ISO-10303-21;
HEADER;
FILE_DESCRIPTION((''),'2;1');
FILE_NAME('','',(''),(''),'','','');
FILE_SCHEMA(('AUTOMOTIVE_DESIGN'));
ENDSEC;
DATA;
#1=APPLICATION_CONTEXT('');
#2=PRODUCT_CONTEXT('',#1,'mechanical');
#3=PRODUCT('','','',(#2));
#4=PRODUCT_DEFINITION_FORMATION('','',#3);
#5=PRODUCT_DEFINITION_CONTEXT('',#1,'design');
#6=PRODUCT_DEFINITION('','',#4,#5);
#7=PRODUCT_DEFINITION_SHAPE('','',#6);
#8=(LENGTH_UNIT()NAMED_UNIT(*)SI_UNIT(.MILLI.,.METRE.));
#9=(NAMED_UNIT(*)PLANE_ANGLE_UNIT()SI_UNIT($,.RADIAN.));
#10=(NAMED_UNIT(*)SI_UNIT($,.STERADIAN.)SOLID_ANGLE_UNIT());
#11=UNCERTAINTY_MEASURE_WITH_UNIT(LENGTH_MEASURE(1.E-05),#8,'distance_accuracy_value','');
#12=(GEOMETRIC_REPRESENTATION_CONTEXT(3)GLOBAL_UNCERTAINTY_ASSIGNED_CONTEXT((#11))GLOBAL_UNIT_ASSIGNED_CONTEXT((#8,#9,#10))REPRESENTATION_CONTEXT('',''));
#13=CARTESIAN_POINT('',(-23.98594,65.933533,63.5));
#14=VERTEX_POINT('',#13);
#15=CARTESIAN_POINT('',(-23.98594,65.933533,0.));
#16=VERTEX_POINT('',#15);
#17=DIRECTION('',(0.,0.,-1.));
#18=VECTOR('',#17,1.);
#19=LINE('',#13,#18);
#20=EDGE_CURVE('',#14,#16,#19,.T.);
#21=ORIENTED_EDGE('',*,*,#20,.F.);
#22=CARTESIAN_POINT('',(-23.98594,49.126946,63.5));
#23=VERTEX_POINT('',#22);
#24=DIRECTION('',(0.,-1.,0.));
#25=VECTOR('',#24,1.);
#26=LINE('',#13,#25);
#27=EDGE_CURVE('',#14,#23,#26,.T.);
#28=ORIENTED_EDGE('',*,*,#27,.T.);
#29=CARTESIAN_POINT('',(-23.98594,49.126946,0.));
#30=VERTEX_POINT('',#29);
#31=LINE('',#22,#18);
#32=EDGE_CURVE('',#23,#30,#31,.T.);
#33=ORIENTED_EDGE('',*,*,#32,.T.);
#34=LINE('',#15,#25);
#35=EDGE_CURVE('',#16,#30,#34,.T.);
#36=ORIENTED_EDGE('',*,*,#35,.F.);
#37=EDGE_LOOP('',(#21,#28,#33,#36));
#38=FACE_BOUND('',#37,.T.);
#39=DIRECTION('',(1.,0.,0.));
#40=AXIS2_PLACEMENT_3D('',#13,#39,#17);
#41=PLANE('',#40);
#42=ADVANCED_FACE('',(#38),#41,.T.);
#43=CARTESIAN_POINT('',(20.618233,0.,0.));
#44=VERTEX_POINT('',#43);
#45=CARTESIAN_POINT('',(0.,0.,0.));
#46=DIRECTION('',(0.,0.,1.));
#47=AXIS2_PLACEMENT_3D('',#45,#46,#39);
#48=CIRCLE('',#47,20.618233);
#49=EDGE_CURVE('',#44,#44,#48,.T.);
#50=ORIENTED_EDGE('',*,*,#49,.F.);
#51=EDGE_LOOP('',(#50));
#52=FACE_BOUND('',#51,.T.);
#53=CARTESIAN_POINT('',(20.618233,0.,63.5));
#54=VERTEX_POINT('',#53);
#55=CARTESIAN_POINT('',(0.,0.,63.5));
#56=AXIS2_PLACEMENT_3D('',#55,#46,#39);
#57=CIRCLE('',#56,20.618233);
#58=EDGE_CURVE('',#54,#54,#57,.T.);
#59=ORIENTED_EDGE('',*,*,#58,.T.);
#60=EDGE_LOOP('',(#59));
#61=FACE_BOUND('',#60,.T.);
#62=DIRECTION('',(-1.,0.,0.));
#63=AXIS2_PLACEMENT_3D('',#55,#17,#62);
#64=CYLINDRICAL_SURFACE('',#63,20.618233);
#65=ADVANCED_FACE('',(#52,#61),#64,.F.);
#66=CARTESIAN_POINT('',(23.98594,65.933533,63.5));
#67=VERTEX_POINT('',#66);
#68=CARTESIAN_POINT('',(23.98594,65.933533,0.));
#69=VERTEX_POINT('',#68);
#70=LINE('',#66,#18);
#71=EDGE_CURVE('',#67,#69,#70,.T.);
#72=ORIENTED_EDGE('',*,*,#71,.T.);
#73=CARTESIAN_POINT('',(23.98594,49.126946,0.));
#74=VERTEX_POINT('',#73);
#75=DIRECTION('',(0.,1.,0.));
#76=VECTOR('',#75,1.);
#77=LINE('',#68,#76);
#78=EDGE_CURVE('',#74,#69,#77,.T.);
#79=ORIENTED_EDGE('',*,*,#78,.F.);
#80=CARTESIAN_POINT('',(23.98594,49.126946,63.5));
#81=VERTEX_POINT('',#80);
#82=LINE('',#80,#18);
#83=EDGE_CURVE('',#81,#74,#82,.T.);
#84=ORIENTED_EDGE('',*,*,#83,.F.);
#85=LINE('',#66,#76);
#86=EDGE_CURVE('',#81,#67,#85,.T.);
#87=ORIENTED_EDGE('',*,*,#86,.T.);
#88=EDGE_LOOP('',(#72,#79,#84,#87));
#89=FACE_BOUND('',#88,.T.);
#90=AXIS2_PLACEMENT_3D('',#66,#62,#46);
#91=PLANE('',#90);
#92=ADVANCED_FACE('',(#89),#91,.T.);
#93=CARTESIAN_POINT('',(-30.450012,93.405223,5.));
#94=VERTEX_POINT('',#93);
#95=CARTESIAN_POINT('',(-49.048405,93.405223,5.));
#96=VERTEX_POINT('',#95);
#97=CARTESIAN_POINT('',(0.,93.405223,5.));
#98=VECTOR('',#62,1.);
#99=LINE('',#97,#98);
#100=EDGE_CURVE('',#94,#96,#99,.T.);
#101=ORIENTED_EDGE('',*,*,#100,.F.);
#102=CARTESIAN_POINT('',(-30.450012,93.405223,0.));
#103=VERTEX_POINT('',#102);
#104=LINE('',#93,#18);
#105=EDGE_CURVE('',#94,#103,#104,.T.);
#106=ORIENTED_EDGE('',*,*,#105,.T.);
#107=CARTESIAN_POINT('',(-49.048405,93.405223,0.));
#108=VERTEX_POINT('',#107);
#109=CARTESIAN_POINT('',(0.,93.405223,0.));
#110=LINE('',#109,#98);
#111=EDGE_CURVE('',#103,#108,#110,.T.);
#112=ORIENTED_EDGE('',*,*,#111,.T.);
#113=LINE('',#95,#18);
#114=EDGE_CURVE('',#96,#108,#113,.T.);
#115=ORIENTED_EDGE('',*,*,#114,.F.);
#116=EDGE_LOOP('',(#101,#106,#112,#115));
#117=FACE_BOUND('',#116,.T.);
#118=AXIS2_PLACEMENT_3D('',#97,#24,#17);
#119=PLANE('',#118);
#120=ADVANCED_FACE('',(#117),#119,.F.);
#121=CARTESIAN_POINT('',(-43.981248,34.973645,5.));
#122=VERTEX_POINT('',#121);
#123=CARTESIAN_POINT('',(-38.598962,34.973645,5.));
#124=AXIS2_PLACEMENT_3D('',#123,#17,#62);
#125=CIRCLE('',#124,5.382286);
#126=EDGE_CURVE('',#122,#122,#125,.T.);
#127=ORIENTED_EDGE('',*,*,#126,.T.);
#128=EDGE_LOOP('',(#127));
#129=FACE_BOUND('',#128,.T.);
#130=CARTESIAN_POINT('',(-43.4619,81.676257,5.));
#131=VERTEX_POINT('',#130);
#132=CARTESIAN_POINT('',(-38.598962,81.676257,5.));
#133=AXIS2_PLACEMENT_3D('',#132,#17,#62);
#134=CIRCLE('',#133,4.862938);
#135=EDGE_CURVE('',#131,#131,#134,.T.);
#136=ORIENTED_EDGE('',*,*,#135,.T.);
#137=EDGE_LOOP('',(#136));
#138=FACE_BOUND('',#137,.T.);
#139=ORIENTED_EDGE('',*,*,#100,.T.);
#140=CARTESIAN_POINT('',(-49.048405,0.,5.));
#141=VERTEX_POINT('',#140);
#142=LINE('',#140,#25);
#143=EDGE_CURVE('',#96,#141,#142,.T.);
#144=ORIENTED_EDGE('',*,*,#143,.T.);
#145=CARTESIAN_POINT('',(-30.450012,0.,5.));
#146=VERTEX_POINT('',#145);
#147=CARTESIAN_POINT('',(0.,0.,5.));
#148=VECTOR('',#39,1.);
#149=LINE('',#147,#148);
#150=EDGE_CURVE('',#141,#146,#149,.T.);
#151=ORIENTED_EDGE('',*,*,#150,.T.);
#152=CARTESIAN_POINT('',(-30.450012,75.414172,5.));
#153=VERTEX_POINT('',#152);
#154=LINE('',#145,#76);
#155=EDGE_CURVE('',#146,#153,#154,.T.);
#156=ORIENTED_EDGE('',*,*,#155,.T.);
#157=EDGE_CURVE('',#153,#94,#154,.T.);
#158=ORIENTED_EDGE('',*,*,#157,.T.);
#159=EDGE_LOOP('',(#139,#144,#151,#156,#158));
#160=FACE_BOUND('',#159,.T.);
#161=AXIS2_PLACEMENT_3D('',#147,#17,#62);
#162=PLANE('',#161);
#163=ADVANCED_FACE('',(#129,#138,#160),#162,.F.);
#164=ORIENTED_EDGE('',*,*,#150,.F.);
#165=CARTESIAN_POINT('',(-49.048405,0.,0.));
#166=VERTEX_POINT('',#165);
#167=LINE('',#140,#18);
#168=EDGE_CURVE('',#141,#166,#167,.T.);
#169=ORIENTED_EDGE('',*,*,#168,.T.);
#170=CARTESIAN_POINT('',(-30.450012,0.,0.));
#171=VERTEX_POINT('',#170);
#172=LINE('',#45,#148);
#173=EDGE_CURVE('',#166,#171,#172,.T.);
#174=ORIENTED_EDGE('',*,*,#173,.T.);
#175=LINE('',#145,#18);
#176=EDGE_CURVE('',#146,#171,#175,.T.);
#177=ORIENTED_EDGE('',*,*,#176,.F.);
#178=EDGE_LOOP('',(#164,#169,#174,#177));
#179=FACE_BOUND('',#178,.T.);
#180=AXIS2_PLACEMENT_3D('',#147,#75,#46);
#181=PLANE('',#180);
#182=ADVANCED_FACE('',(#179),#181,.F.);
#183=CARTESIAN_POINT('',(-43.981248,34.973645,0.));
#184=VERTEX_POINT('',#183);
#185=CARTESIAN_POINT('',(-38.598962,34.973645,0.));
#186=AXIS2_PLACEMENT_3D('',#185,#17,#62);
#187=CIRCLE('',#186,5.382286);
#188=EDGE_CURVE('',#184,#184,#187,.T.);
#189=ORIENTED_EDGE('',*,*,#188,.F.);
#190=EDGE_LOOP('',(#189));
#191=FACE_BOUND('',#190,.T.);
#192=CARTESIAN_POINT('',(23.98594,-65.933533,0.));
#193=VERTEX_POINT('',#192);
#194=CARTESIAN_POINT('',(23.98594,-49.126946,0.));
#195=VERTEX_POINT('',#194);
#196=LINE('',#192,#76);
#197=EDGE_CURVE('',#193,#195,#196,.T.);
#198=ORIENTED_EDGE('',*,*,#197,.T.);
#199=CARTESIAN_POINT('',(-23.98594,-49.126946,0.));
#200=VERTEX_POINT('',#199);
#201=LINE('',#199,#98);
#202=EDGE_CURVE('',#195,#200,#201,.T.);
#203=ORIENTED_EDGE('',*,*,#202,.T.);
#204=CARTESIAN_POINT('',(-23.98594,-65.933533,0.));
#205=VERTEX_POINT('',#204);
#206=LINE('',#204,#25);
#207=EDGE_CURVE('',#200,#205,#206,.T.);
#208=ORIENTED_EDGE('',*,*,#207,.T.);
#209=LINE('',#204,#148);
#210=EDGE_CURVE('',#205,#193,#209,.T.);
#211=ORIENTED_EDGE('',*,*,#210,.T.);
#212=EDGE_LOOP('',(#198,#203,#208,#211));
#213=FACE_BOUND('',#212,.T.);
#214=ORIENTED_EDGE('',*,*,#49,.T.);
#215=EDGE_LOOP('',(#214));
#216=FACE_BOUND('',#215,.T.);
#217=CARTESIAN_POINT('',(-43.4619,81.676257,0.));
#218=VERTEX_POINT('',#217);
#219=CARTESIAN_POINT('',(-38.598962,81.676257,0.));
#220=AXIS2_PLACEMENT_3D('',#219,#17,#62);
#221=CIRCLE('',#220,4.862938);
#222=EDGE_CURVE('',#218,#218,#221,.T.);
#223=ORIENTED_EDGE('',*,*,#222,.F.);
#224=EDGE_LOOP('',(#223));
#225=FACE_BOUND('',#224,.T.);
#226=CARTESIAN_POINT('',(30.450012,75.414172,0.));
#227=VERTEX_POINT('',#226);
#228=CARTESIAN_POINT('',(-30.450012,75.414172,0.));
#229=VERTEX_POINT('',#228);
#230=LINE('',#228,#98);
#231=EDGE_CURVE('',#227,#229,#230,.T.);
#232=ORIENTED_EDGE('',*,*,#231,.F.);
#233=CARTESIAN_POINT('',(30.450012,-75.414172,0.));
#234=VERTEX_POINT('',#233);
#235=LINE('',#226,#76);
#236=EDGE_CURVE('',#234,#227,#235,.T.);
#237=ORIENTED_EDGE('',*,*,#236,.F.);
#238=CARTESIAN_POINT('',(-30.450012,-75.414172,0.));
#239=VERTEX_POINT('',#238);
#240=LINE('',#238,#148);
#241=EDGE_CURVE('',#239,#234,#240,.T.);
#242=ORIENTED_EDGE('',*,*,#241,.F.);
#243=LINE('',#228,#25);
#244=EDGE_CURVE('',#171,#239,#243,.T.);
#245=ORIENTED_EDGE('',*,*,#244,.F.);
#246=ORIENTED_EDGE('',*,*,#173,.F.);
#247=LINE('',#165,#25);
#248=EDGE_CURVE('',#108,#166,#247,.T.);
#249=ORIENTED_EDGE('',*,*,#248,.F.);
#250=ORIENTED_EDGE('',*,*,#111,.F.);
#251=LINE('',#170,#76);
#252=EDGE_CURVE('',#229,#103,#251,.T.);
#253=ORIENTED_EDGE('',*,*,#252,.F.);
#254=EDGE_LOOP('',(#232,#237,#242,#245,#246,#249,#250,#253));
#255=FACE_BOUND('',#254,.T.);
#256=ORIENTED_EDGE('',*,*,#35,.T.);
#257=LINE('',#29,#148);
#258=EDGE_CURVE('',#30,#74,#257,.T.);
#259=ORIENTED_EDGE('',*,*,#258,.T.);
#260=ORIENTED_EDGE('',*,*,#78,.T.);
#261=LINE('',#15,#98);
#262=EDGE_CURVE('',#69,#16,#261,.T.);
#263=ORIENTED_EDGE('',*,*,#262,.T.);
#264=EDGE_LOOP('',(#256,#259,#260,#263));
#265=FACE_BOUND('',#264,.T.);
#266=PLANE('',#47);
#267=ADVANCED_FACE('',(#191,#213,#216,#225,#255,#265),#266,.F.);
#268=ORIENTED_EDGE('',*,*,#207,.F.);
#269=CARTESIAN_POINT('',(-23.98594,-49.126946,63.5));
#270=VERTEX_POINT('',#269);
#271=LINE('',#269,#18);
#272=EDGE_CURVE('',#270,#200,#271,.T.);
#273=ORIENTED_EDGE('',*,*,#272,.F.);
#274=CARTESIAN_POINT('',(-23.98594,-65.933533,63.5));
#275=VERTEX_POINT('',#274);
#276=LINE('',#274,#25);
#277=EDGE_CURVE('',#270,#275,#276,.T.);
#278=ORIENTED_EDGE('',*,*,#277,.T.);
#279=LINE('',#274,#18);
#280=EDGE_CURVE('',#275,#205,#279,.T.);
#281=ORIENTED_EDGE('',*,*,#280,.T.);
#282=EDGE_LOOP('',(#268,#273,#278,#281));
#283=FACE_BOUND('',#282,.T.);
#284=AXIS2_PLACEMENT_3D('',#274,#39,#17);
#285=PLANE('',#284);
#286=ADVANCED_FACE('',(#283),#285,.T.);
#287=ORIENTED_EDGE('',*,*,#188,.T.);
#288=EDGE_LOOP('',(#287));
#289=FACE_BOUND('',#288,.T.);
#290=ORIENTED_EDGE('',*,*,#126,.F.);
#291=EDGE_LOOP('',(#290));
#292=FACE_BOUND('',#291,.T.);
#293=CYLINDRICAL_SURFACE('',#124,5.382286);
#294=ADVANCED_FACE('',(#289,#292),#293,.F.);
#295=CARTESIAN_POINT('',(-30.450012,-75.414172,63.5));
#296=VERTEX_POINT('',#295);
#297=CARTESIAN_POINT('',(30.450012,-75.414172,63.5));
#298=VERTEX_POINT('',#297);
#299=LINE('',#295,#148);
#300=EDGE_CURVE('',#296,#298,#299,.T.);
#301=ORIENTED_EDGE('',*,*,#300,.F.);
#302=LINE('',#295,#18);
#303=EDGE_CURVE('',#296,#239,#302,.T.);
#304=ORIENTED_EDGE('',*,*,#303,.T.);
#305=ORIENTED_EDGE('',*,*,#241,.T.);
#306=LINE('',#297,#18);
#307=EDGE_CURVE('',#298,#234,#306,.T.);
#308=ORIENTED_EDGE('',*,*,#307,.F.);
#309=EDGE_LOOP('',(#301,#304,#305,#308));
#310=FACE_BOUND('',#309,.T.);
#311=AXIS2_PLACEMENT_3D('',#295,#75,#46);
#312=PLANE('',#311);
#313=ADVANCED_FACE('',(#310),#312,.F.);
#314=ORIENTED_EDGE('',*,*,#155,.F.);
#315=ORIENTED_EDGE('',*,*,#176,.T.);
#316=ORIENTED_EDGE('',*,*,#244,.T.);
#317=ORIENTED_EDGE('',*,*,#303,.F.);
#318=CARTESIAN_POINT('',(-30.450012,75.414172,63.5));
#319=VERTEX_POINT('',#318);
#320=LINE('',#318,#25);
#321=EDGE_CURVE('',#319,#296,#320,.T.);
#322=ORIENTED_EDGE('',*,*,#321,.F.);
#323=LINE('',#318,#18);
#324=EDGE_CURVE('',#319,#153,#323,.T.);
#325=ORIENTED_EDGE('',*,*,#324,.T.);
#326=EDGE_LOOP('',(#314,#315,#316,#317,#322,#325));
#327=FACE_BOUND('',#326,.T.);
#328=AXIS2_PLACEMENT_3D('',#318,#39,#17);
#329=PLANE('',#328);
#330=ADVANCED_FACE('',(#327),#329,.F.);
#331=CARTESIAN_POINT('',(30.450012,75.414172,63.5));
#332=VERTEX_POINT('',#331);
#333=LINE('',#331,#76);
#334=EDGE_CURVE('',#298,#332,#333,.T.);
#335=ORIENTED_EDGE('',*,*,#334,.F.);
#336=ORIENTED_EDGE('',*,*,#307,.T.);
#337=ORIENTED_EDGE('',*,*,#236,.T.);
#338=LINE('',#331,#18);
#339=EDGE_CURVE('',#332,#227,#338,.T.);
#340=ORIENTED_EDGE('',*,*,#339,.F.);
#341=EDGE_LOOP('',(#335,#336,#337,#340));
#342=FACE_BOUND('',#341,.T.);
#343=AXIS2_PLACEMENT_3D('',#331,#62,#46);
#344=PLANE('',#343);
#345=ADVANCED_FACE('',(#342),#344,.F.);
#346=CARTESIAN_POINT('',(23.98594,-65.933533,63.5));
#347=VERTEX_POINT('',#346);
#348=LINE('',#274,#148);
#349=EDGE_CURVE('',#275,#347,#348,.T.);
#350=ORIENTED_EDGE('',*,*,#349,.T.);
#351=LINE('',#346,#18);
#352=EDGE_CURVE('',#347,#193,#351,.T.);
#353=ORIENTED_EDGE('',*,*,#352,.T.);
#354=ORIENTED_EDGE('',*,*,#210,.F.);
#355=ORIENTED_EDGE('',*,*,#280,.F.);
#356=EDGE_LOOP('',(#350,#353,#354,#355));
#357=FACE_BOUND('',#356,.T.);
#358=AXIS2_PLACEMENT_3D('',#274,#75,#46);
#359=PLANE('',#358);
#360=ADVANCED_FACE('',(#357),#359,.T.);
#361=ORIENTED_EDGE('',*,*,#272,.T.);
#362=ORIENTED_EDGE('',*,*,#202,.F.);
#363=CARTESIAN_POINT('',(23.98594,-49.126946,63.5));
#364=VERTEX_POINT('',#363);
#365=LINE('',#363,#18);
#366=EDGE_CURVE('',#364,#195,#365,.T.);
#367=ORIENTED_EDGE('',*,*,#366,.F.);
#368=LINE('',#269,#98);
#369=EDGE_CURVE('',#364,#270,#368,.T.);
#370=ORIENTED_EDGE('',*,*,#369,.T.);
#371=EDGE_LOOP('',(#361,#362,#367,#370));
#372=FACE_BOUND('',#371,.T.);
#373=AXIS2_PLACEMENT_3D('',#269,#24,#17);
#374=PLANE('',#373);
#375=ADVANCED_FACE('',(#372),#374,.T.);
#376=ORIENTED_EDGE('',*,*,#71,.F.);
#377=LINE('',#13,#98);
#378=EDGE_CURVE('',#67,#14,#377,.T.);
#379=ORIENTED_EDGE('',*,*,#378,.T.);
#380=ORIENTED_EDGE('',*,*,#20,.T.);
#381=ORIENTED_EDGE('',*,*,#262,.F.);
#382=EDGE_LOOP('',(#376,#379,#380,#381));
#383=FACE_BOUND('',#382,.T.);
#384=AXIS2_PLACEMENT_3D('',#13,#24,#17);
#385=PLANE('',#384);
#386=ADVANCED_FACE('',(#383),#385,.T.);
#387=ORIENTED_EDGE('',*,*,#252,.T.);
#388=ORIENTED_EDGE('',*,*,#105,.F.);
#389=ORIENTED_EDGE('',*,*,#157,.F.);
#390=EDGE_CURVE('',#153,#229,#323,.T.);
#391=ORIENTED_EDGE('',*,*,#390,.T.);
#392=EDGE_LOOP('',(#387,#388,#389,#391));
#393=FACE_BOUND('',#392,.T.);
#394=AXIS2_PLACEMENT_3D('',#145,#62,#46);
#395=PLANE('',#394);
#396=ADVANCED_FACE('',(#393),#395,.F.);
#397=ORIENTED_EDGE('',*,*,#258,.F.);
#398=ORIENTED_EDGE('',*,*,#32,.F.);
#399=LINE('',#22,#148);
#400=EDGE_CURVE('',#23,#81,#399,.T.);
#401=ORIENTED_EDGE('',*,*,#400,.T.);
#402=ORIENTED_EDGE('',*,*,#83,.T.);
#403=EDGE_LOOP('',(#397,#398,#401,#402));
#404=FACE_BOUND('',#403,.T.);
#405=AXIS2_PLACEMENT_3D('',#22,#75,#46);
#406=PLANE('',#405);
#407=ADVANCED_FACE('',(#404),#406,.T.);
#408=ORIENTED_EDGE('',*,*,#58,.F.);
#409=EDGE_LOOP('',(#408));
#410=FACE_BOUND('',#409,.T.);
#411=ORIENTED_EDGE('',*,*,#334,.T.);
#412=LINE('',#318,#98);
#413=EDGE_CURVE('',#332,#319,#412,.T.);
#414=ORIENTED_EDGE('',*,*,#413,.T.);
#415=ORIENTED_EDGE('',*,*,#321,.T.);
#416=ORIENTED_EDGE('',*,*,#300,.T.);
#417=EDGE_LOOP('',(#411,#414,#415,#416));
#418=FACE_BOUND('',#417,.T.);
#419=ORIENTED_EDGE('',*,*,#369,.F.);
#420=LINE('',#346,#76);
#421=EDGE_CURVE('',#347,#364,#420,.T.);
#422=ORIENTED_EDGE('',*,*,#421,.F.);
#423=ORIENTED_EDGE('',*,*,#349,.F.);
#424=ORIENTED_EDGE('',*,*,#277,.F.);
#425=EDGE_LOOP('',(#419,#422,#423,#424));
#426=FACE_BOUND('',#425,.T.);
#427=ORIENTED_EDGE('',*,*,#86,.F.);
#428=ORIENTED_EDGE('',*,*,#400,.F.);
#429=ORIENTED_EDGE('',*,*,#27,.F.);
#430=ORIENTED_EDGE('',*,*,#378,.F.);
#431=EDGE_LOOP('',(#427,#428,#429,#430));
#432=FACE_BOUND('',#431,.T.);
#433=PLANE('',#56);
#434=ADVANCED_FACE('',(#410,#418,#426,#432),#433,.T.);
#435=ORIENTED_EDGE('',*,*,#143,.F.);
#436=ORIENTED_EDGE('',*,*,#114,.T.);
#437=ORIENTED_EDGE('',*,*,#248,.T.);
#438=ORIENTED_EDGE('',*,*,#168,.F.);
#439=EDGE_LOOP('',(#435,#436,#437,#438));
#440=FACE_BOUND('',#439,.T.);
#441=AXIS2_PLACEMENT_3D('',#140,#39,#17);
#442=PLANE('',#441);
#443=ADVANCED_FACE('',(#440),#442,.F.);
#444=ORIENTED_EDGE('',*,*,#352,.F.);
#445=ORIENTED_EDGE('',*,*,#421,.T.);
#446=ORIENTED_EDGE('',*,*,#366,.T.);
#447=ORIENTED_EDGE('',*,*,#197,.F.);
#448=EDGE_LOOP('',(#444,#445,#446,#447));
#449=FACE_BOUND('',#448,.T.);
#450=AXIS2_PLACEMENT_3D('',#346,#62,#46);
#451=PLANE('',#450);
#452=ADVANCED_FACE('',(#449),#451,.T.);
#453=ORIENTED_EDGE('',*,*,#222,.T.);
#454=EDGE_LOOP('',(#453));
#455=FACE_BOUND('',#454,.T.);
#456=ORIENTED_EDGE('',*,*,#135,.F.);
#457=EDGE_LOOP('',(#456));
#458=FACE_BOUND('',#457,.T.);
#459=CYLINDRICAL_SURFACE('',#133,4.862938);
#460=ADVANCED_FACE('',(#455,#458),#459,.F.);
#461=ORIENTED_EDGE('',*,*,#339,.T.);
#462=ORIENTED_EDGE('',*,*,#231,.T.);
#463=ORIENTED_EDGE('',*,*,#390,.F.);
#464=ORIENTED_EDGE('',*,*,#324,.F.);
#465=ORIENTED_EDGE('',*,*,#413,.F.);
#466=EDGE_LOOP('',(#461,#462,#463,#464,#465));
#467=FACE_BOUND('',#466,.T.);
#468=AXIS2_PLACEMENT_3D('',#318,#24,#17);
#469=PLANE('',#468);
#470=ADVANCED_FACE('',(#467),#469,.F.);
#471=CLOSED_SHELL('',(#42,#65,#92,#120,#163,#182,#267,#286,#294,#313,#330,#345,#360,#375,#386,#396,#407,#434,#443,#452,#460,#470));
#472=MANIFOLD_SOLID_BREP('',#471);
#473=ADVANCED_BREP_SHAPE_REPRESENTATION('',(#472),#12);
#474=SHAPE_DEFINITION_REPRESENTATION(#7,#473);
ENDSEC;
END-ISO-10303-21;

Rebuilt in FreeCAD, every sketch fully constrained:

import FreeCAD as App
import Part
import Sketcher
from FreeCAD import Vector
Q = App.Units.Quantity

doc = App.newDocument("Part")
body = doc.addObject("PartDesign::Body", "Body")

# Sketch on XY plane
sketch1 = body.newObject("Sketcher::SketchObject", "Sketch")
sketch1.AttachmentSupport = (doc.getObject("XY_Plane"), [""])
sketch1.MapMode = "FlatFace"
sketch1.addGeometry([
    Part.LineSegment(Vector(-30, 75, 0), Vector(-30, -75, 0)),  # 0
    Part.LineSegment(Vector(-30, -75, 0), Vector(30, -75, 0)),  # 1
    Part.LineSegment(Vector(30, -75, 0), Vector(30, 75, 0)),  # 2
    Part.LineSegment(Vector(30, 75, 0), Vector(-30, 75, 0)),  # 3
    Part.LineSegment(Vector(24, -66, 0), Vector(-24, -66, 0)),  # 4
    Part.LineSegment(Vector(-24, -66, 0), Vector(-24, -49, 0)),  # 5
    Part.LineSegment(Vector(-24, -49, 0), Vector(24, -49, 0)),  # 6
    Part.LineSegment(Vector(24, -49, 0), Vector(24, -66, 0)),  # 7
    Part.Circle(Vector(0, 0, 0), Vector(0, 0, 1), 21),  # 8
    Part.LineSegment(Vector(24, 49, 0), Vector(-24, 49, 0)),  # 9
    Part.LineSegment(Vector(-24, 49, 0), Vector(-24, 66, 0)),  # 10
    Part.LineSegment(Vector(-24, 66, 0), Vector(24, 66, 0)),  # 11
    Part.LineSegment(Vector(24, 66, 0), Vector(24, 49, 0)),  # 12
], False)
sketch1.addConstraint([
    Sketcher.Constraint("Coincident", 0, 2, 1, 1),
    Sketcher.Constraint("Coincident", 1, 2, 2, 1),
    Sketcher.Constraint("Coincident", 2, 2, 3, 1),
    Sketcher.Constraint("Coincident", 3, 2, 0, 1),
    Sketcher.Constraint("Coincident", 4, 2, 5, 1),
    Sketcher.Constraint("Coincident", 5, 2, 6, 1),
    Sketcher.Constraint("Coincident", 6, 2, 7, 1),
    Sketcher.Constraint("Coincident", 7, 2, 4, 1),
    Sketcher.Constraint("Coincident", 9, 2, 10, 1),
    Sketcher.Constraint("Coincident", 10, 2, 11, 1),
    Sketcher.Constraint("Coincident", 11, 2, 12, 1),
    Sketcher.Constraint("Coincident", 12, 2, 9, 1),
    Sketcher.Constraint("Vertical", 0),
    Sketcher.Constraint("Horizontal", 1),
    Sketcher.Constraint("Vertical", 2),
    Sketcher.Constraint("Horizontal", 3),
    Sketcher.Constraint("Horizontal", 4),
    Sketcher.Constraint("Vertical", 5),
    Sketcher.Constraint("Horizontal", 6),
    Sketcher.Constraint("Vertical", 7),
    Sketcher.Constraint("Horizontal", 9),
    Sketcher.Constraint("Vertical", 10),
    Sketcher.Constraint("Horizontal", 11),
    Sketcher.Constraint("Vertical", 12),
    Sketcher.Constraint("Coincident", 8, 3, -1, 1),
    Sketcher.Constraint("Symmetric", 0, 2, 2, 2, -1, 1),
    Sketcher.Constraint("Symmetric", 6, 2, 9, 2, -1, 1),
    Sketcher.Constraint("Symmetric", 4, 2, 11, 2, -1, 1),
    Sketcher.Constraint("Vertical", 5, 2, 9, 2),
    Sketcher.Constraint("Diameter", 8, Q("41.236465 mm")),
    Sketcher.Constraint("DistanceX", 4, 2, 4, 1, Q("47.97188 mm")),
    Sketcher.Constraint("DistanceX", 1, 1, 1, 2, Q("60.900024 mm")),
    Sketcher.Constraint("DistanceY", 0, 2, 0, 1, Q("150.828343 mm")),
    Sketcher.Constraint("DistanceY", 5, 1, 5, 2, Q("16.806587 mm")),
    Sketcher.Constraint("DistanceY", 0, 2, 4, 2, Q("9.480639 mm")),
])
pad1 = body.newObject("PartDesign::Pad", "Pad")
pad1.Profile = sketch1
pad1.Length = 63.5

# Sketch on XY plane
sketch2 = body.newObject("Sketcher::SketchObject", "Sketch001")
sketch2.AttachmentSupport = (doc.getObject("XY_Plane"), [""])
sketch2.MapMode = "FlatFace"
sketch2.addGeometry([
    Part.LineSegment(Vector(-30.5, 93.4, 0), Vector(-30.5, 0, 0)),  # 0
    Part.LineSegment(Vector(-30.5, 0, 0), Vector(-49, 0, 0)),  # 1
    Part.LineSegment(Vector(-49, 0, 0), Vector(-49, 93.4, 0)),  # 2
    Part.LineSegment(Vector(-49, 93.4, 0), Vector(-30.5, 93.4, 0)),  # 3
    Part.Circle(Vector(-38.6, 35, 0), Vector(0, 0, 1), 5.4),  # 4
    Part.Circle(Vector(-38.6, 81.7, 0), Vector(0, 0, 1), 4.9),  # 5
], False)
sketch2.addConstraint([
    Sketcher.Constraint("Coincident", 0, 2, 1, 1),
    Sketcher.Constraint("Coincident", 1, 2, 2, 1),
    Sketcher.Constraint("Coincident", 2, 2, 3, 1),
    Sketcher.Constraint("Coincident", 3, 2, 0, 1),
    Sketcher.Constraint("Vertical", 0),
    Sketcher.Constraint("Horizontal", 1),
    Sketcher.Constraint("Vertical", 2),
    Sketcher.Constraint("Horizontal", 3),
    Sketcher.Constraint("PointOnObject", 0, 2, -1),
    Sketcher.Constraint("Vertical", 4, 3, 5, 3),
    Sketcher.Constraint("Diameter", 4, Q("10.764572 mm")),
    Sketcher.Constraint("Diameter", 5, Q("9.725876 mm")),
    Sketcher.Constraint("DistanceX", 1, 2, 1, 1, Q("18.598393 mm")),
    Sketcher.Constraint("DistanceY", 0, 2, 0, 1, Q("93.405223 mm")),
    Sketcher.Constraint("DistanceX", 0, 2, -1, 1, Q("30.450012 mm")),
    Sketcher.Constraint("DistanceY", 4, 3, 5, 3, Q("46.702612 mm")),
    Sketcher.Constraint("DistanceX", 4, 3, 0, 2, Q("8.14895 mm")),
    Sketcher.Constraint("DistanceY", -1, 1, 4, 3, Q("34.973645 mm")),
])
pad2 = body.newObject("PartDesign::Pad", "Pad001")
pad2.Profile = sketch2
pad2.Length = 5

doc.recompute()
